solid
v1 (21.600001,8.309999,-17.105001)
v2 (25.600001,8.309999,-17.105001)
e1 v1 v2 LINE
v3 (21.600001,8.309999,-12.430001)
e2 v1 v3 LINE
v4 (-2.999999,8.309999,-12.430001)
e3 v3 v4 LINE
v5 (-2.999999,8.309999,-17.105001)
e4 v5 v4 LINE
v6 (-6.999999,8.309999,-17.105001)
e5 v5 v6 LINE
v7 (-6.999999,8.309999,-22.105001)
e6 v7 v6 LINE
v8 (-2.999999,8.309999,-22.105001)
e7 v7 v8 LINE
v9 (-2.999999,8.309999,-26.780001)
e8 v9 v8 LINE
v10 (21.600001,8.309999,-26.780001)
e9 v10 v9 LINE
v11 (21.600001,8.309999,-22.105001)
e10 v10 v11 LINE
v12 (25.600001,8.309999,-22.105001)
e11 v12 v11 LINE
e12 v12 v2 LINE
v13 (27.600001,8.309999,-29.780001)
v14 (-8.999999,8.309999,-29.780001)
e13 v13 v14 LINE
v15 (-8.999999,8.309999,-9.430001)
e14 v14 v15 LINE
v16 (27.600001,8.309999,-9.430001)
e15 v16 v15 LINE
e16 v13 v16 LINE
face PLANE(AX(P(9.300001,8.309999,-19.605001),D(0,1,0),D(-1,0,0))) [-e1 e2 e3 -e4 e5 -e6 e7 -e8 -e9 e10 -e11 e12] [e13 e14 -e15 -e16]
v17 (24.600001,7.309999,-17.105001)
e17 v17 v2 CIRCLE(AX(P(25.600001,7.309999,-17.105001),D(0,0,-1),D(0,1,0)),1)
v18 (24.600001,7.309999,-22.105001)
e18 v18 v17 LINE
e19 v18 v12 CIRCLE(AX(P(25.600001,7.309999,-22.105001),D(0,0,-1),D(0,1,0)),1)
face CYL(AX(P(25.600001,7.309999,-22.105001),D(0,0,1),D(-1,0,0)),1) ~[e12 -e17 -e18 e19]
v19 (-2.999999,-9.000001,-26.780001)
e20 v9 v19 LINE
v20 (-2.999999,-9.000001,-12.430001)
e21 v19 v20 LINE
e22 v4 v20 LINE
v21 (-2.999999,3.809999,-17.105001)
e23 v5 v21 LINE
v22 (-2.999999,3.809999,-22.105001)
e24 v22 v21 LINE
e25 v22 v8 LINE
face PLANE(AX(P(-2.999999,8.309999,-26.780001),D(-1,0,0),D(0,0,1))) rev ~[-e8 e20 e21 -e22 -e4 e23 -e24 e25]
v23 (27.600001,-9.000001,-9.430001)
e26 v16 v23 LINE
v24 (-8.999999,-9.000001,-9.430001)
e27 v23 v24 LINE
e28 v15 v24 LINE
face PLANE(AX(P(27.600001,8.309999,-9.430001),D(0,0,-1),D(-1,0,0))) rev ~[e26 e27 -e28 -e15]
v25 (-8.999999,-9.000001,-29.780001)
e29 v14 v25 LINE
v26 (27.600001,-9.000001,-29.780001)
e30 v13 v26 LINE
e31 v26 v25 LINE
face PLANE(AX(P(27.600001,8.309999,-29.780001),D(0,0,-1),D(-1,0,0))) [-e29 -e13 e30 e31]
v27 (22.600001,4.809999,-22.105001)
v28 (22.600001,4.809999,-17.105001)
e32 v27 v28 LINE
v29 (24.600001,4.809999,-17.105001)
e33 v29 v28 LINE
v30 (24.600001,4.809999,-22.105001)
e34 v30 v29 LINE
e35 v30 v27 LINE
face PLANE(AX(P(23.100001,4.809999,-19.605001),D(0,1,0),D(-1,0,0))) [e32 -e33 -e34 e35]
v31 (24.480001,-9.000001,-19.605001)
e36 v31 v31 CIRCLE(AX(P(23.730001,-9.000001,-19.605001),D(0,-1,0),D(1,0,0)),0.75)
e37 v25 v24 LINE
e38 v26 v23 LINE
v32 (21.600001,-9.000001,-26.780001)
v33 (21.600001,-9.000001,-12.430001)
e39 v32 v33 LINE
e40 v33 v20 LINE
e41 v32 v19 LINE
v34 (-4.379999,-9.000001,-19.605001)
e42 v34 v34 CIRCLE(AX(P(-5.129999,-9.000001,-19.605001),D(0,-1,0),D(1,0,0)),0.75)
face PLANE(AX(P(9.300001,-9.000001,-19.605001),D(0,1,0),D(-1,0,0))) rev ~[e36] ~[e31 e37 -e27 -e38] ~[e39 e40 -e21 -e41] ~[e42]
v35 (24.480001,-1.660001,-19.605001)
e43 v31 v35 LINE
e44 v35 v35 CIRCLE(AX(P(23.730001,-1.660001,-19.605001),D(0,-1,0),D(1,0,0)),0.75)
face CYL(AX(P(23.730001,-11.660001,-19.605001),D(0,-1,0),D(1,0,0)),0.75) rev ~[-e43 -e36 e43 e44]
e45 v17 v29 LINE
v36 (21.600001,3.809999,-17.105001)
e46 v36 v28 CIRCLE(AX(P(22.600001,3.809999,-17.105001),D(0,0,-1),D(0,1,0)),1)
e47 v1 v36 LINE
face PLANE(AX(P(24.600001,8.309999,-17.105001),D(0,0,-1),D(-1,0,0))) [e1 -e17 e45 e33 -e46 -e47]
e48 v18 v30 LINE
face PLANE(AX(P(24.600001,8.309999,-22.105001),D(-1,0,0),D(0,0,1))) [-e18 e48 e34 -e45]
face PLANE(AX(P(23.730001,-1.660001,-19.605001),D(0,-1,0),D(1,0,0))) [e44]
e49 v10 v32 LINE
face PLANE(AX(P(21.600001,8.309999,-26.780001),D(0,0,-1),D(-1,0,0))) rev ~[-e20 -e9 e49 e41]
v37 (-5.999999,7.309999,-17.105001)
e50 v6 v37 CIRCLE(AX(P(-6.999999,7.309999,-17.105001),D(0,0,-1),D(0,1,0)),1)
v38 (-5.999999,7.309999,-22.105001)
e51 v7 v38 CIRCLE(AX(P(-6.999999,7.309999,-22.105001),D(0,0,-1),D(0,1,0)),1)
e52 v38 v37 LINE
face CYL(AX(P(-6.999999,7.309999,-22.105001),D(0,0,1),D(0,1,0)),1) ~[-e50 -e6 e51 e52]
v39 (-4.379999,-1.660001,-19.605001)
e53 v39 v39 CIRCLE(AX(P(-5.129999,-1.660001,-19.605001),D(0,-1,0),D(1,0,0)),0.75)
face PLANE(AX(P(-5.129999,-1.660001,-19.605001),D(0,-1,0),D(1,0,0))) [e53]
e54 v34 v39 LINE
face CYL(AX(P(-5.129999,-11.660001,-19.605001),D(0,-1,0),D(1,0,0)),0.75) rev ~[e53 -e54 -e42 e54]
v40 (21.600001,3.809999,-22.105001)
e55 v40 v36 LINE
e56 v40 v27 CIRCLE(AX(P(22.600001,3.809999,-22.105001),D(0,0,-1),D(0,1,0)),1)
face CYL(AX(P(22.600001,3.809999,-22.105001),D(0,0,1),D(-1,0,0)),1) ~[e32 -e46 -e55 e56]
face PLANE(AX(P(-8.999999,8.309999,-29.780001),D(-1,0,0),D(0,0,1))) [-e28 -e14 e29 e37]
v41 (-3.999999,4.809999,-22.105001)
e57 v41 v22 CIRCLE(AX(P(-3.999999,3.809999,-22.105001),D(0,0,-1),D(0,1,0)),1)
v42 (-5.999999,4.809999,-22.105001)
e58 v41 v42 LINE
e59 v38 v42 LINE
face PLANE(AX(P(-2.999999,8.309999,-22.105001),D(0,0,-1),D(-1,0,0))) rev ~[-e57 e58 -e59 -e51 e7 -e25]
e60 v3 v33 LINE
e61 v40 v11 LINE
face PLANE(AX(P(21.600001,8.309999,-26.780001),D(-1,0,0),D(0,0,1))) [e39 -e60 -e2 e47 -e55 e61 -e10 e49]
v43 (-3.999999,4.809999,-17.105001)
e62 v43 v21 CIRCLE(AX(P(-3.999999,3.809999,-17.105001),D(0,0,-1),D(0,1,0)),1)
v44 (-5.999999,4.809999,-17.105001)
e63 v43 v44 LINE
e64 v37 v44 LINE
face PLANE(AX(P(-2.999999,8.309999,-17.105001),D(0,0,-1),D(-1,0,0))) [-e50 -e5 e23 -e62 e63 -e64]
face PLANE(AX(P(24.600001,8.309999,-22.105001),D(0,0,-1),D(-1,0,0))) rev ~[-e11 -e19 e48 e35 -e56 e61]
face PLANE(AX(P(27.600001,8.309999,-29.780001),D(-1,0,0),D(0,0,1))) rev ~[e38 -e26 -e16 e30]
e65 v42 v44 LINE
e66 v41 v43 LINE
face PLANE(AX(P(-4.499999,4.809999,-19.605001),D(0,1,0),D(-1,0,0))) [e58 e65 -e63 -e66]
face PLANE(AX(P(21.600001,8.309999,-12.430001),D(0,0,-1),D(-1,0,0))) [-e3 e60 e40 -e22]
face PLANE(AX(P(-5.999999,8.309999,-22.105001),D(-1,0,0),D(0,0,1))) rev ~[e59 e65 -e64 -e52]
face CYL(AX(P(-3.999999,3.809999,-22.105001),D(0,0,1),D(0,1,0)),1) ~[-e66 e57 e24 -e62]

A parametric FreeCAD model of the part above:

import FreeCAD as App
import Part
import Sketcher

V = App.Vector


def edges_at(feature, points):
    """Names of the edges that pass closest to the given points."""
    edges = feature.Shape.Edges
    near = lambda p: min(range(len(edges)), key=lambda i: edges[i].distToShape(Part.Vertex(*p))[0])
    return sorted({f"Edge{near(p) + 1}" for p in points})


def add_polygon(sketch, points):
    """Adds a closed chain of lines whose ends are joined by coincident constraints."""
    first, n = sketch.GeometryCount, len(points)
    for a, b in zip(points, points[1:] + points[:1]):
        sketch.addGeometry(Part.LineSegment(App.Vector(*a, 0), App.Vector(*b, 0)), False)
    for i in range(n):
        sketch.addConstraint(Sketcher.Constraint("Coincident", first + i, 2, first + (i + 1) % n, 1))

doc = App.newDocument("Part")
params = doc.addObject("Spreadsheet::Sheet", "Params")
for row, (alias, value) in enumerate([
    ("sketch1_width", "36.6 mm"),
    ("sketch1_width2", "24.6 mm"),
    ("sketch1_height", "20.35 mm"),
    ("pad1_length", "17.31 mm"),
    ("sketch2_diameter", "1.5 mm"),
    ("pocket1_length", "10 mm"),
    ("sketch3_width", "3 mm"),
    ("sketch3_height", "5 mm"),
    ("pocket2_length", "3.5 mm"),
    ("fillet_radius", "1 mm"),
    ("fillet2_radius", "1 mm"),
    ("fillet3_radius", "1 mm"),
    ("fillet4_radius", "1 mm"),
], start=1):
    params.set(f"A{row}", alias)
    params.set(f"B{row}", "=" + value)
    params.setAlias(f"B{row}", alias)

body = doc.addObject("PartDesign::Body", "Body")

# Sketch on XZ plane
sketch1 = body.newObject("Sketcher::SketchObject", "Sketch")
sketch1.AttachmentSupport = (doc.getObject("XZ_Plane"), [""])
sketch1.MapMode = "FlatFace"
add_polygon(sketch1, [(-7, 16), (-7, -4), (30, -4), (30, 16)])  # lines 0-3
add_polygon(sketch1, [(24, -1), (-1, -1), (-1, 13), (24, 13)])  # lines 4-7
sketch1.addConstraint(Sketcher.Constraint("Vertical", 0))
sketch1.addConstraint(Sketcher.Constraint("Horizontal", 1))
sketch1.addConstraint(Sketcher.Constraint("Vertical", 2))
sketch1.addConstraint(Sketcher.Constraint("Horizontal", 3))
sketch1.addConstraint(Sketcher.Constraint("Horizontal", 4))
sketch1.addConstraint(Sketcher.Constraint("Vertical", 5))
sketch1.addConstraint(Sketcher.Constraint("Horizontal", 6))
sketch1.addConstraint(Sketcher.Constraint("Vertical", 7))
sketch1.addConstraint(Sketcher.Constraint("DistanceX", 1, 1, 1, 2, 36.6))
sketch1.addConstraint(Sketcher.Constraint("DistanceX", 4, 2, 4, 1, 24.6))
sketch1.addConstraint(Sketcher.Constraint("DistanceX", 0, 2, -1, 1, 7.0))
sketch1.addConstraint(Sketcher.Constraint("DistanceY", 0, 2, -1, 1, 4.0))
sketch1.addConstraint(Sketcher.Constraint("DistanceX", 4, 2, -1, 1, 1.0))
sketch1.addConstraint(Sketcher.Constraint("DistanceY", 4, 2, -1, 1, 1.0))
sketch1.addConstraint(Sketcher.Constraint("DistanceY", 5, 2, 3, 2, 3.0))
sketch1.addConstraint(Sketcher.Constraint("DistanceY", 0, 2, 0, 1, 20.35))
sketch1.setExpression("Constraints[16]", "Params.sketch1_width")
sketch1.setExpression("Constraints[17]", "Params.sketch1_width2")
sketch1.setExpression("Constraints[23]", "Params.sketch1_height")
pad1 = body.newObject("PartDesign::Pad", "Pad")
pad1.Profile = sketch1
pad1.setExpression("Length", "Params.pad1_length")
pad1.Reversed = True

# Sketch on XZ plane
sketch2 = body.newObject("Sketcher::SketchObject", "Sketch001")
sketch2.AttachmentSupport = (doc.getObject("XZ_Plane"), [""])
sketch2.MapMode = "FlatFace"
sketch2.AttachmentOffset = App.Placement(V(0, 0, -19.97), App.Rotation())
sketch2.addGeometry(Part.Circle(V(25.7, 6.2, 0), V(0, 0, 1), 0.8), False)
sketch2.addGeometry(Part.Circle(V(-3.1, 6.2, 0), V(0, 0, 1), 0.8), False)
sketch2.addConstraint(Sketcher.Constraint("Equal", 0, 1))
sketch2.addConstraint(Sketcher.Constraint("Horizontal", 0, 3, 1, 3))
sketch2.addConstraint(Sketcher.Constraint("Diameter", 0, 1.5))
sketch2.addConstraint(Sketcher.Constraint("DistanceX", -1, 1, 0, 3, 25.73))
sketch2.addConstraint(Sketcher.Constraint("DistanceX", 1, 3, -1, 1, 3.13))
sketch2.addConstraint(Sketcher.Constraint("DistanceY", -1, 1, 0, 3, 6.175))
sketch2.setExpression("Constraints[2]", "Params.sketch2_diameter")
pocket1 = body.newObject("PartDesign::Pocket", "Pocket")
pocket1.Profile = sketch2
pocket1.setExpression("Length", "Params.pocket1_length")
pocket1.Reversed = True

# Sketch on XZ plane
sketch3 = body.newObject("Sketcher::SketchObject", "Sketch002")
sketch3.AttachmentSupport = (doc.getObject("XZ_Plane"), [""])
sketch3.MapMode = "FlatFace"
add_polygon(sketch3, [(-4, 8.7), (-4, 3.7), (-1, 3.7), (-1, 8.7)])  # lines 0-3
add_polygon(sketch3, [(23.6, 8.7), (23.6, 3.7), (26.6, 3.7), (26.6, 8.7)])  # lines 4-7
sketch3.addConstraint(Sketcher.Constraint("Vertical", 0))
sketch3.addConstraint(Sketcher.Constraint("Horizontal", 1))
sketch3.addConstraint(Sketcher.Constraint("Vertical", 2))
sketch3.addConstraint(Sketcher.Constraint("Horizontal", 3))
sketch3.addConstraint(Sketcher.Constraint("Vertical", 4))
sketch3.addConstraint(Sketcher.Constraint("Horizontal", 5))
sketch3.addConstraint(Sketcher.Constraint("Vertical", 6))
sketch3.addConstraint(Sketcher.Constraint("Horizontal", 7))
sketch3.addConstraint(Sketcher.Constraint("Horizontal", 1, 2, 4, 2))
sketch3.addConstraint(Sketcher.Constraint("Horizontal", 3, 2, 6, 2))
sketch3.addConstraint(Sketcher.Constraint("Equal", 3, 5))
sketch3.addConstraint(Sketcher.Constraint("DistanceX", 1, 1, 1, 2, 3.0))
sketch3.addConstraint(Sketcher.Constraint("DistanceY", 0, 2, 0, 1, 5.0))
sketch3.addConstraint(Sketcher.Constraint("DistanceX", 0, 2, -1, 1, 4.0))
sketch3.addConstraint(Sketcher.Constraint("DistanceX", -1, 1, 4, 2, 23.6))
sketch3.addConstraint(Sketcher.Constraint("DistanceY", -1, 1, 0, 2, 3.675))
sketch3.setExpression("Constraints[19]", "Params.sketch3_width")
sketch3.setExpression("Constraints[20]", "Params.sketch3_height")
pocket2 = body.newObject("PartDesign::Pocket", "Pocket001")
pocket2.Profile = sketch3
pocket2.setExpression("Length", "Params.pocket2_length")
doc.recompute()

fillet = body.newObject("PartDesign::Fillet", "Fillet")
fillet.Base = (pocket2, edges_at(pocket2, [(26.6, 0, 6.175)]))
fillet.setExpression("Radius", "Params.fillet_radius")
doc.recompute()

fillet2 = body.newObject("PartDesign::Fillet", "Fillet001")
fillet2.Base = (fillet, edges_at(fillet, [(23.6, 3.5, 6.175)]))
fillet2.setExpression("Radius", "Params.fillet2_radius")
doc.recompute()

fillet3 = body.newObject("PartDesign::Fillet", "Fillet002")
fillet3.Base = (fillet2, edges_at(fillet2, [(-1, 3.5, 6.175)]))
fillet3.setExpression("Radius", "Params.fillet3_radius")
doc.recompute()

fillet4 = body.newObject("PartDesign::Fillet", "Fillet003")
fillet4.Base = (fillet3, edges_at(fillet3, [(-4, 0, 6.175)]))
fillet4.setExpression("Radius", "Params.fillet4_radius")
body2 = doc.addObject("PartDesign::Body", "Body001")
doc.recompute()

body.Placement = App.Placement(V(20.600001, 8.309999, -25.780001), App.Rotation(V(0, 0, 1), 180))
boolean = body2.newObject("PartDesign::Boolean", "Boolean")
boolean.Type = "Fuse"
boolean.addObjects([body])

doc.recompute()
